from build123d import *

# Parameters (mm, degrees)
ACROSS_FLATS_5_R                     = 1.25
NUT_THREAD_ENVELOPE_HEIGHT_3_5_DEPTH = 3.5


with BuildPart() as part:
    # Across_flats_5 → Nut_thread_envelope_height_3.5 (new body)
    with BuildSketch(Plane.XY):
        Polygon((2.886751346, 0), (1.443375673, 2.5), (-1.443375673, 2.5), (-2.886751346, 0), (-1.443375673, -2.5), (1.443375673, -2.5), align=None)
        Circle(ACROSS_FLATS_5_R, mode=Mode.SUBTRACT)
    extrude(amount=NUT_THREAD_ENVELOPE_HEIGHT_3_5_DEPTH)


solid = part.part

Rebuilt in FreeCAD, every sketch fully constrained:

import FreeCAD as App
import Part
import Sketcher
Q = App.Units.Quantity

doc = App.newDocument("Part")
body = doc.addObject("PartDesign::Body", "Body")

# Sketch on XY plane
sketch1 = doc.addObject("Sketcher::SketchObject", "Sketch")
body.addObject(sketch1)
sketch1.AttachmentSupport = (doc.XY_Plane, [""])
sketch1.MapMode = "FlatFace"
sketch1.addGeometry(Part.LineSegment(App.Vector(2.9, 0, 0), App.Vector(1.4, 2.5, 0)), False)
sketch1.addGeometry(Part.LineSegment(App.Vector(1.4, 2.5, 0), App.Vector(-1.4, 2.5, 0)), False)
sketch1.addGeometry(Part.LineSegment(App.Vector(-1.4, 2.5, 0), App.Vector(-2.9, 0, 0)), False)
sketch1.addGeometry(Part.LineSegment(App.Vector(-2.9, 0, 0), App.Vector(-1.4, -2.5, 0)), False)
sketch1.addGeometry(Part.LineSegment(App.Vector(-1.4, -2.5, 0), App.Vector(1.4, -2.5, 0)), False)
sketch1.addGeometry(Part.LineSegment(App.Vector(1.4, -2.5, 0), App.Vector(2.9, 0, 0)), False)
sketch1.addGeometry(Part.Circle(App.Vector(0, 0, 0), App.Vector(0, 0, 1), 1.2), False)
sketch1.addConstraint(Sketcher.Constraint("Coincident", 0, 2, 1, 1))
sketch1.addConstraint(Sketcher.Constraint("Coincident", 1, 2, 2, 1))
sketch1.addConstraint(Sketcher.Constraint("Coincident", 2, 2, 3, 1))
sketch1.addConstraint(Sketcher.Constraint("Coincident", 3, 2, 4, 1))
sketch1.addConstraint(Sketcher.Constraint("Coincident", 4, 2, 5, 1))
sketch1.addConstraint(Sketcher.Constraint("Coincident", 5, 2, 0, 1))
sketch1.addConstraint(Sketcher.Constraint("Horizontal", 1))
sketch1.addConstraint(Sketcher.Constraint("Horizontal", 4))
sketch1.addConstraint(Sketcher.Constraint("Coincident", 6, 3, -1, 1))
sketch1.addConstraint(Sketcher.Constraint("Symmetric", 0, 2, 3, 2, -1, 1))
sketch1.addConstraint(Sketcher.Constraint("Symmetric", 2, 2, 5, 2, -1, 1))
sketch1.addConstraint(Sketcher.Constraint("PointOnObject", 2, 2, -1))
sketch1.addConstraint(Sketcher.Constraint("Parallel", 2, 5))
sketch1.addConstraint(Sketcher.Constraint("Vertical", 1, 2, 3, 2))
sketch1.addConstraint(Sketcher.Constraint("Diameter", 6, 2.5))
sketch1.addConstraint(Sketcher.Constraint("Angle", 0, Q("120 deg")))
sketch1.addConstraint(Sketcher.Constraint("DistanceY", 3, 2, 1, 2, 5.0))
sketch1.addConstraint(Sketcher.Constraint("DistanceX", 1, 2, 1, 1, 2.886751))
pad1 = doc.addObject("PartDesign::Pad", "Pad")
body.addObject(pad1)
pad1.Profile = sketch1
pad1.Length = 3.5

doc.recompute()
